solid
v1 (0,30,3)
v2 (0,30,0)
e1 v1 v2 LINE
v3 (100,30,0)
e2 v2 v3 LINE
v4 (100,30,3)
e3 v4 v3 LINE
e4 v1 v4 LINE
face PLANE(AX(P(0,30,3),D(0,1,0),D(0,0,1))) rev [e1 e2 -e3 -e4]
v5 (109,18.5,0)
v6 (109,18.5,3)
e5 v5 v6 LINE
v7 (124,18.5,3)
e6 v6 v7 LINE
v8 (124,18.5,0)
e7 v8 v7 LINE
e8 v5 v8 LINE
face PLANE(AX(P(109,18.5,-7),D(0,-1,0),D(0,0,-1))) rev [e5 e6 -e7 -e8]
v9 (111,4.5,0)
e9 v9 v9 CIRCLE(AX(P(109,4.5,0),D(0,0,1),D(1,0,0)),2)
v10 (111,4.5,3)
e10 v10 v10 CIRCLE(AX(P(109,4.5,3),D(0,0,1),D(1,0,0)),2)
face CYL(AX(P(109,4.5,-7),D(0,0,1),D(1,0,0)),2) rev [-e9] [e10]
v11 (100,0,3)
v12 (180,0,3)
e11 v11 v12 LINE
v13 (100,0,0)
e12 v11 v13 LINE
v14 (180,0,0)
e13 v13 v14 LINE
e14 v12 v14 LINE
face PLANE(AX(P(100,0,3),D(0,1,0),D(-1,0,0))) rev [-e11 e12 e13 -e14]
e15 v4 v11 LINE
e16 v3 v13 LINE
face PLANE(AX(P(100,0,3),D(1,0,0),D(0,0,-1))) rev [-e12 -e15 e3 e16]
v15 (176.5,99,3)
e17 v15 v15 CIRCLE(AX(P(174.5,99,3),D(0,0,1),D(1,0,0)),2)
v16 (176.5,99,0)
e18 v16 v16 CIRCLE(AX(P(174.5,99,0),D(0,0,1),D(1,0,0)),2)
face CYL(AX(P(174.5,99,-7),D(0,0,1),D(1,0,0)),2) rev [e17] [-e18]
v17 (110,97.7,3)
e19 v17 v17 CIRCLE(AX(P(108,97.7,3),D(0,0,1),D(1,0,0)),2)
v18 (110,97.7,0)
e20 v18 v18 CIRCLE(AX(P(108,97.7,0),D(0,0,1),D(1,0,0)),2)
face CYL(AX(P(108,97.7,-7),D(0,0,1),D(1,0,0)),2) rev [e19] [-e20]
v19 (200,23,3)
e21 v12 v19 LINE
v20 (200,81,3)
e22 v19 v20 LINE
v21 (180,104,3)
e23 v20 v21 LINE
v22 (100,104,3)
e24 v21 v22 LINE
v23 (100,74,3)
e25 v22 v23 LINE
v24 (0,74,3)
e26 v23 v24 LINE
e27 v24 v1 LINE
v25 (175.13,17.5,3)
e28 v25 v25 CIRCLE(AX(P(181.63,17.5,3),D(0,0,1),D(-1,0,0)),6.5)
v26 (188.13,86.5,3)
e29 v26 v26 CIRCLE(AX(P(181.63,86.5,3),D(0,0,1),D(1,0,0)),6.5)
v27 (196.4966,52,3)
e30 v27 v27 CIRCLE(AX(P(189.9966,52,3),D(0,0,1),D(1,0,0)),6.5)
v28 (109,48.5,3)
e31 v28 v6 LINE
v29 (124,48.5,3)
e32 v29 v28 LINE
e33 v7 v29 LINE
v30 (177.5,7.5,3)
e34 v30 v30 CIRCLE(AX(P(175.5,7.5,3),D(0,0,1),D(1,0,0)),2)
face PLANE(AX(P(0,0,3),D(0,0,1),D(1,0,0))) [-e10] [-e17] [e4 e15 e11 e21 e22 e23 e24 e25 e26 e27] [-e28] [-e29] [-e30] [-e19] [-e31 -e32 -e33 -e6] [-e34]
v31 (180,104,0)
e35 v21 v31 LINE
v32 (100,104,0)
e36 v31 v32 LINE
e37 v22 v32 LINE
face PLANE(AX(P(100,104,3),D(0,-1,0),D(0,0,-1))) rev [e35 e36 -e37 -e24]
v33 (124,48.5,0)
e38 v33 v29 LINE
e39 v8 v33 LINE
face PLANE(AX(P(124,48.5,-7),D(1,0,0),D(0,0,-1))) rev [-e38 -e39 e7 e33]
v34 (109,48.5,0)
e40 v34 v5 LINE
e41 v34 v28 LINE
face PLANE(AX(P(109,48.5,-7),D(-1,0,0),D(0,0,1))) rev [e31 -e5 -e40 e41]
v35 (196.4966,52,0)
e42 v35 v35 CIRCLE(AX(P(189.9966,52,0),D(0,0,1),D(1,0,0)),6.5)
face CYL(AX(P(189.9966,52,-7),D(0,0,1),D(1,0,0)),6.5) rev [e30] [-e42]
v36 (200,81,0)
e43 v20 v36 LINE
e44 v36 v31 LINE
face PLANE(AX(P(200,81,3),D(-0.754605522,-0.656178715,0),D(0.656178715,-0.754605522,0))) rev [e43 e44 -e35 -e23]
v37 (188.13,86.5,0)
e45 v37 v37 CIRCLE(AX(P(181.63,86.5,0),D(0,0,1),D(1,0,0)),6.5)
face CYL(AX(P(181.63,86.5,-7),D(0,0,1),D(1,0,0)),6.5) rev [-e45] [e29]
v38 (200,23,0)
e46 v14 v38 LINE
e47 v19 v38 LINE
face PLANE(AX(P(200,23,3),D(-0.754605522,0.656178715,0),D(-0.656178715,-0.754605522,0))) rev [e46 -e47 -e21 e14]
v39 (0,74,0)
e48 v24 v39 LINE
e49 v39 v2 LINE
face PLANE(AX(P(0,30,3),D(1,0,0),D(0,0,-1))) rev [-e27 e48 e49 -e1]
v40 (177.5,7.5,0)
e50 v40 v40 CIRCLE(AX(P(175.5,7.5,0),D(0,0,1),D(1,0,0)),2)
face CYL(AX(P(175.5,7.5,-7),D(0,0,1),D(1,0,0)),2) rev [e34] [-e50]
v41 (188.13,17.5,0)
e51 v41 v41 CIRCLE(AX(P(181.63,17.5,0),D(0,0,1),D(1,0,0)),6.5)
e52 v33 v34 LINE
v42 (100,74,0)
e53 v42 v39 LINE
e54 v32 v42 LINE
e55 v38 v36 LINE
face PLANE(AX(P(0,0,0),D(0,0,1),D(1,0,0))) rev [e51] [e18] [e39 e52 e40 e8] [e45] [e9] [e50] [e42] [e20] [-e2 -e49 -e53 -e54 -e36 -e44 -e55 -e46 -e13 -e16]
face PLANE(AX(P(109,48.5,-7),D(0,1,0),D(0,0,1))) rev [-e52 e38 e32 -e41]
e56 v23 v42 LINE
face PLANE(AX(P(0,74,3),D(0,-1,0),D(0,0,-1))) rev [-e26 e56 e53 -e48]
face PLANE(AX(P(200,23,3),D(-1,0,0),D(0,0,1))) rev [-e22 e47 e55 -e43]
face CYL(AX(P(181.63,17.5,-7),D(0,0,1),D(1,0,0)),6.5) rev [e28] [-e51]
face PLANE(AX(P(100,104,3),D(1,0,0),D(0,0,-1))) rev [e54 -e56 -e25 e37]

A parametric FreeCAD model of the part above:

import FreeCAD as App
import Part
import Sketcher


def add_polygon(sketch, points):
    """Adds a closed chain of lines whose ends are joined by coincident constraints."""
    first, n = sketch.GeometryCount, len(points)
    for a, b in zip(points, points[1:] + points[:1]):
        sketch.addGeometry(Part.LineSegment(App.Vector(*a, 0), App.Vector(*b, 0)), False)
    for i in range(n):
        sketch.addConstraint(Sketcher.Constraint("Coincident", first + i, 2, first + (i + 1) % n, 1))

doc = App.newDocument("Part")
body = doc.addObject("PartDesign::Body", "Body")

# Sketch on XY plane
sketch1 = body.newObject("Sketcher::SketchObject", "Sketch")
sketch1.AttachmentSupport = (doc.getObject("XY_Plane"), [""])
sketch1.MapMode = "FlatFace"
add_polygon(sketch1, [(100, 0), (180, 0), (200, 23), (200, 81), (180, 104), (100, 104), (100, 74), (0, 74), (0, 30), (100, 30)])  # lines 0-9
sketch1.addConstraint(Sketcher.Constraint("Horizontal", 0))
sketch1.addConstraint(Sketcher.Constraint("Vertical", 2))
sketch1.addConstraint(Sketcher.Constraint("Horizontal", 4))
sketch1.addConstraint(Sketcher.Constraint("Vertical", 5))
sketch1.addConstraint(Sketcher.Constraint("Horizontal", 6))
sketch1.addConstraint(Sketcher.Constraint("Vertical", 7))
sketch1.addConstraint(Sketcher.Constraint("Horizontal", 8))
sketch1.addConstraint(Sketcher.Constraint("Vertical", 9))
sketch1.addConstraint(Sketcher.Constraint("PointOnObject", 0, 2, -1))
sketch1.addConstraint(Sketcher.Constraint("PointOnObject", 6, 2, -2))
sketch1.addConstraint(Sketcher.Constraint("Vertical", 0, 2, 3, 2))
sketch1.addConstraint(Sketcher.Constraint("Vertical", 5, 2, 8, 2))
sketch1.addConstraint(Sketcher.Constraint("Equal", 5, 9))
sketch1.addConstraint(Sketcher.Constraint("Equal", 1, 3))
sketch1.addConstraint(Sketcher.Constraint("DistanceX", 0, 1, 0, 2, 80.0))
sketch1.addConstraint(Sketcher.Constraint("DistanceX", 6, 2, 6, 1, 100.0))
sketch1.addConstraint(Sketcher.Constraint("DistanceY", 2, 1, 2, 2, 58.0))
sketch1.addConstraint(Sketcher.Constraint("DistanceY", 5, 2, 5, 1, 30.0))
sketch1.addConstraint(Sketcher.Constraint("DistanceY", 7, 2, 7, 1, 44.0))
sketch1.addConstraint(Sketcher.Constraint("DistanceX", -1, 1, 1, 2, 200.0))
pad1 = body.newObject("PartDesign::Pad", "Pad")
pad1.Profile = sketch1
pad1.Length = 3

# Sketch on XY plane
sketch2 = body.newObject("Sketcher::SketchObject", "Sketch001")
sketch2.AttachmentSupport = (doc.getObject("XY_Plane"), [""])
sketch2.MapMode = "FlatFace"
sketch2.AttachmentOffset = App.Placement(App.Vector(0, 0, 3), App.Rotation())
add_polygon(sketch2, [(109, 48), (109, 18), (124, 18), (124, 48)])  # lines 0-3
sketch2.addConstraint(Sketcher.Constraint("Vertical", 0))
sketch2.addConstraint(Sketcher.Constraint("Horizontal", 1))
sketch2.addConstraint(Sketcher.Constraint("Vertical", 2))
sketch2.addConstraint(Sketcher.Constraint("Horizontal", 3))
sketch2.addConstraint(Sketcher.Constraint("DistanceX", 1, 1, 1, 2, 15.0))
sketch2.addConstraint(Sketcher.Constraint("DistanceY", 0, 2, 0, 1, 30.0))
sketch2.addConstraint(Sketcher.Constraint("DistanceX", -1, 1, 0, 2, 109.0))
sketch2.addConstraint(Sketcher.Constraint("DistanceY", -1, 1, 0, 2, 18.5))
pocket1 = body.newObject("PartDesign::Pocket", "Pocket")
pocket1.Profile = sketch2
pocket1.Length = 10

# Sketch on XY plane
sketch3 = body.newObject("Sketcher::SketchObject", "Sketch002")
sketch3.AttachmentSupport = (doc.getObject("XY_Plane"), [""])
sketch3.MapMode = "FlatFace"
sketch3.AttachmentOffset = App.Placement(App.Vector(0, 0, 3), App.Rotation())
sketch3.addGeometry(Part.Circle(App.Vector(109, 4.5, 0), App.Vector(0, 0, 1), 2), False)
sketch3.addConstraint(Sketcher.Constraint("Diameter", 0, 4.0))
sketch3.addConstraint(Sketcher.Constraint("DistanceX", -1, 1, 0, 3, 109.0))
sketch3.addConstraint(Sketcher.Constraint("DistanceY", -1, 1, 0, 3, 4.5))
pocket2 = body.newObject("PartDesign::Pocket", "Pocket001")
pocket2.Profile = sketch3
pocket2.Length = 10

# Sketch on XY plane
sketch4 = body.newObject("Sketcher::SketchObject", "Sketch003")
sketch4.AttachmentSupport = (doc.getObject("XY_Plane"), [""])
sketch4.MapMode = "FlatFace"
sketch4.AttachmentOffset = App.Placement(App.Vector(0, 0, 3), App.Rotation())
sketch4.addGeometry(Part.Circle(App.Vector(175.5, 7.5, 0), App.Vector(0, 0, 1), 2), False)
sketch4.addConstraint(Sketcher.Constraint("Diameter", 0, 4.0))
sketch4.addConstraint(Sketcher.Constraint("DistanceX", -1, 1, 0, 3, 175.5))
sketch4.addConstraint(Sketcher.Constraint("DistanceY", -1, 1, 0, 3, 7.5))
pocket3 = body.newObject("PartDesign::Pocket", "Pocket002")
pocket3.Profile = sketch4
pocket3.Length = 10

# Sketch on XY plane
sketch5 = body.newObject("Sketcher::SketchObject", "Sketch004")
sketch5.AttachmentSupport = (doc.getObject("XY_Plane"), [""])
sketch5.MapMode = "FlatFace"
sketch5.AttachmentOffset = App.Placement(App.Vector(0, 0, 3), App.Rotation())
sketch5.addGeometry(Part.Circle(App.Vector(108, 97.7, 0), App.Vector(0, 0, 1), 2), False)
sketch5.addConstraint(Sketcher.Constraint("Diameter", 0, 4.0))
sketch5.addConstraint(Sketcher.Constraint("DistanceX", -1, 1, 0, 3, 108.0))
sketch5.addConstraint(Sketcher.Constraint("DistanceY", -1, 1, 0, 3, 97.7))
pocket4 = body.newObject("PartDesign::Pocket", "Pocket003")
pocket4.Profile = sketch5
pocket4.Length = 10

# Sketch on XY plane
sketch6 = body.newObject("Sketcher::SketchObject", "Sketch005")
sketch6.AttachmentSupport = (doc.getObject("XY_Plane"), [""])
sketch6.MapMode = "FlatFace"
sketch6.AttachmentOffset = App.Placement(App.Vector(0, 0, 3), App.Rotation())
sketch6.addGeometry(Part.Circle(App.Vector(174.5, 99, 0), App.Vector(0, 0, 1), 2), False)
sketch6.addConstraint(Sketcher.Constraint("Diameter", 0, 4.0))
sketch6.addConstraint(Sketcher.Constraint("DistanceY", -1, 1, 0, 3, 99.0))
sketch6.addConstraint(Sketcher.Constraint("DistanceX", -1, 1, 0, 3, 174.5))
pocket5 = body.newObject("PartDesign::Pocket", "Pocket004")
pocket5.Profile = sketch6
pocket5.Length = 10

# Sketch on XY plane
sketch7 = body.newObject("Sketcher::SketchObject", "Sketch006")
sketch7.AttachmentSupport = (doc.getObject("XY_Plane"), [""])
sketch7.MapMode = "FlatFace"
sketch7.AttachmentOffset = App.Placement(App.Vector(0, 0, 3), App.Rotation())
sketch7.addGeometry(Part.Circle(App.Vector(182, 86, 0), App.Vector(0, 0, 1), 6), False)
sketch7.addGeometry(Part.Circle(App.Vector(182, 18, 0), App.Vector(0, 0, 1), 6), False)
sketch7.addConstraint(Sketcher.Constraint("Equal", 0, 1))
sketch7.addConstraint(Sketcher.Constraint("Vertical", 0, 3, 1, 3))
sketch7.addConstraint(Sketcher.Constraint("Diameter", 0, 13.0))
sketch7.addConstraint(Sketcher.Constraint("DistanceY", 1, 3, 0, 3, 69.0))
sketch7.addConstraint(Sketcher.Constraint("DistanceY", -1, 1, 0, 3, 86.5))
sketch7.addConstraint(Sketcher.Constraint("DistanceX", -1, 1, 0, 3, 181.63))
pocket6 = body.newObject("PartDesign::Pocket", "Pocket005")
pocket6.Profile = sketch7
pocket6.Length = 10

# Sketch on XY plane
sketch8 = body.newObject("Sketcher::SketchObject", "Sketch007")
sketch8.AttachmentSupport = (doc.getObject("XY_Plane"), [""])
sketch8.MapMode = "FlatFace"
sketch8.AttachmentOffset = App.Placement(App.Vector(0, 0, 3), App.Rotation())
sketch8.addGeometry(Part.Circle(App.Vector(190, 52, 0), App.Vector(0, 0, 1), 6), False)
sketch8.addConstraint(Sketcher.Constraint("Diameter", 0, 13.0))
sketch8.addConstraint(Sketcher.Constraint("DistanceY", -1, 1, 0, 3, 52.0))
sketch8.addConstraint(Sketcher.Constraint("DistanceX", -1, 1, 0, 3, 189.9966))
pocket7 = body.newObject("PartDesign::Pocket", "Pocket006")
pocket7.Profile = sketch8
pocket7.Length = 10

doc.recompute()
